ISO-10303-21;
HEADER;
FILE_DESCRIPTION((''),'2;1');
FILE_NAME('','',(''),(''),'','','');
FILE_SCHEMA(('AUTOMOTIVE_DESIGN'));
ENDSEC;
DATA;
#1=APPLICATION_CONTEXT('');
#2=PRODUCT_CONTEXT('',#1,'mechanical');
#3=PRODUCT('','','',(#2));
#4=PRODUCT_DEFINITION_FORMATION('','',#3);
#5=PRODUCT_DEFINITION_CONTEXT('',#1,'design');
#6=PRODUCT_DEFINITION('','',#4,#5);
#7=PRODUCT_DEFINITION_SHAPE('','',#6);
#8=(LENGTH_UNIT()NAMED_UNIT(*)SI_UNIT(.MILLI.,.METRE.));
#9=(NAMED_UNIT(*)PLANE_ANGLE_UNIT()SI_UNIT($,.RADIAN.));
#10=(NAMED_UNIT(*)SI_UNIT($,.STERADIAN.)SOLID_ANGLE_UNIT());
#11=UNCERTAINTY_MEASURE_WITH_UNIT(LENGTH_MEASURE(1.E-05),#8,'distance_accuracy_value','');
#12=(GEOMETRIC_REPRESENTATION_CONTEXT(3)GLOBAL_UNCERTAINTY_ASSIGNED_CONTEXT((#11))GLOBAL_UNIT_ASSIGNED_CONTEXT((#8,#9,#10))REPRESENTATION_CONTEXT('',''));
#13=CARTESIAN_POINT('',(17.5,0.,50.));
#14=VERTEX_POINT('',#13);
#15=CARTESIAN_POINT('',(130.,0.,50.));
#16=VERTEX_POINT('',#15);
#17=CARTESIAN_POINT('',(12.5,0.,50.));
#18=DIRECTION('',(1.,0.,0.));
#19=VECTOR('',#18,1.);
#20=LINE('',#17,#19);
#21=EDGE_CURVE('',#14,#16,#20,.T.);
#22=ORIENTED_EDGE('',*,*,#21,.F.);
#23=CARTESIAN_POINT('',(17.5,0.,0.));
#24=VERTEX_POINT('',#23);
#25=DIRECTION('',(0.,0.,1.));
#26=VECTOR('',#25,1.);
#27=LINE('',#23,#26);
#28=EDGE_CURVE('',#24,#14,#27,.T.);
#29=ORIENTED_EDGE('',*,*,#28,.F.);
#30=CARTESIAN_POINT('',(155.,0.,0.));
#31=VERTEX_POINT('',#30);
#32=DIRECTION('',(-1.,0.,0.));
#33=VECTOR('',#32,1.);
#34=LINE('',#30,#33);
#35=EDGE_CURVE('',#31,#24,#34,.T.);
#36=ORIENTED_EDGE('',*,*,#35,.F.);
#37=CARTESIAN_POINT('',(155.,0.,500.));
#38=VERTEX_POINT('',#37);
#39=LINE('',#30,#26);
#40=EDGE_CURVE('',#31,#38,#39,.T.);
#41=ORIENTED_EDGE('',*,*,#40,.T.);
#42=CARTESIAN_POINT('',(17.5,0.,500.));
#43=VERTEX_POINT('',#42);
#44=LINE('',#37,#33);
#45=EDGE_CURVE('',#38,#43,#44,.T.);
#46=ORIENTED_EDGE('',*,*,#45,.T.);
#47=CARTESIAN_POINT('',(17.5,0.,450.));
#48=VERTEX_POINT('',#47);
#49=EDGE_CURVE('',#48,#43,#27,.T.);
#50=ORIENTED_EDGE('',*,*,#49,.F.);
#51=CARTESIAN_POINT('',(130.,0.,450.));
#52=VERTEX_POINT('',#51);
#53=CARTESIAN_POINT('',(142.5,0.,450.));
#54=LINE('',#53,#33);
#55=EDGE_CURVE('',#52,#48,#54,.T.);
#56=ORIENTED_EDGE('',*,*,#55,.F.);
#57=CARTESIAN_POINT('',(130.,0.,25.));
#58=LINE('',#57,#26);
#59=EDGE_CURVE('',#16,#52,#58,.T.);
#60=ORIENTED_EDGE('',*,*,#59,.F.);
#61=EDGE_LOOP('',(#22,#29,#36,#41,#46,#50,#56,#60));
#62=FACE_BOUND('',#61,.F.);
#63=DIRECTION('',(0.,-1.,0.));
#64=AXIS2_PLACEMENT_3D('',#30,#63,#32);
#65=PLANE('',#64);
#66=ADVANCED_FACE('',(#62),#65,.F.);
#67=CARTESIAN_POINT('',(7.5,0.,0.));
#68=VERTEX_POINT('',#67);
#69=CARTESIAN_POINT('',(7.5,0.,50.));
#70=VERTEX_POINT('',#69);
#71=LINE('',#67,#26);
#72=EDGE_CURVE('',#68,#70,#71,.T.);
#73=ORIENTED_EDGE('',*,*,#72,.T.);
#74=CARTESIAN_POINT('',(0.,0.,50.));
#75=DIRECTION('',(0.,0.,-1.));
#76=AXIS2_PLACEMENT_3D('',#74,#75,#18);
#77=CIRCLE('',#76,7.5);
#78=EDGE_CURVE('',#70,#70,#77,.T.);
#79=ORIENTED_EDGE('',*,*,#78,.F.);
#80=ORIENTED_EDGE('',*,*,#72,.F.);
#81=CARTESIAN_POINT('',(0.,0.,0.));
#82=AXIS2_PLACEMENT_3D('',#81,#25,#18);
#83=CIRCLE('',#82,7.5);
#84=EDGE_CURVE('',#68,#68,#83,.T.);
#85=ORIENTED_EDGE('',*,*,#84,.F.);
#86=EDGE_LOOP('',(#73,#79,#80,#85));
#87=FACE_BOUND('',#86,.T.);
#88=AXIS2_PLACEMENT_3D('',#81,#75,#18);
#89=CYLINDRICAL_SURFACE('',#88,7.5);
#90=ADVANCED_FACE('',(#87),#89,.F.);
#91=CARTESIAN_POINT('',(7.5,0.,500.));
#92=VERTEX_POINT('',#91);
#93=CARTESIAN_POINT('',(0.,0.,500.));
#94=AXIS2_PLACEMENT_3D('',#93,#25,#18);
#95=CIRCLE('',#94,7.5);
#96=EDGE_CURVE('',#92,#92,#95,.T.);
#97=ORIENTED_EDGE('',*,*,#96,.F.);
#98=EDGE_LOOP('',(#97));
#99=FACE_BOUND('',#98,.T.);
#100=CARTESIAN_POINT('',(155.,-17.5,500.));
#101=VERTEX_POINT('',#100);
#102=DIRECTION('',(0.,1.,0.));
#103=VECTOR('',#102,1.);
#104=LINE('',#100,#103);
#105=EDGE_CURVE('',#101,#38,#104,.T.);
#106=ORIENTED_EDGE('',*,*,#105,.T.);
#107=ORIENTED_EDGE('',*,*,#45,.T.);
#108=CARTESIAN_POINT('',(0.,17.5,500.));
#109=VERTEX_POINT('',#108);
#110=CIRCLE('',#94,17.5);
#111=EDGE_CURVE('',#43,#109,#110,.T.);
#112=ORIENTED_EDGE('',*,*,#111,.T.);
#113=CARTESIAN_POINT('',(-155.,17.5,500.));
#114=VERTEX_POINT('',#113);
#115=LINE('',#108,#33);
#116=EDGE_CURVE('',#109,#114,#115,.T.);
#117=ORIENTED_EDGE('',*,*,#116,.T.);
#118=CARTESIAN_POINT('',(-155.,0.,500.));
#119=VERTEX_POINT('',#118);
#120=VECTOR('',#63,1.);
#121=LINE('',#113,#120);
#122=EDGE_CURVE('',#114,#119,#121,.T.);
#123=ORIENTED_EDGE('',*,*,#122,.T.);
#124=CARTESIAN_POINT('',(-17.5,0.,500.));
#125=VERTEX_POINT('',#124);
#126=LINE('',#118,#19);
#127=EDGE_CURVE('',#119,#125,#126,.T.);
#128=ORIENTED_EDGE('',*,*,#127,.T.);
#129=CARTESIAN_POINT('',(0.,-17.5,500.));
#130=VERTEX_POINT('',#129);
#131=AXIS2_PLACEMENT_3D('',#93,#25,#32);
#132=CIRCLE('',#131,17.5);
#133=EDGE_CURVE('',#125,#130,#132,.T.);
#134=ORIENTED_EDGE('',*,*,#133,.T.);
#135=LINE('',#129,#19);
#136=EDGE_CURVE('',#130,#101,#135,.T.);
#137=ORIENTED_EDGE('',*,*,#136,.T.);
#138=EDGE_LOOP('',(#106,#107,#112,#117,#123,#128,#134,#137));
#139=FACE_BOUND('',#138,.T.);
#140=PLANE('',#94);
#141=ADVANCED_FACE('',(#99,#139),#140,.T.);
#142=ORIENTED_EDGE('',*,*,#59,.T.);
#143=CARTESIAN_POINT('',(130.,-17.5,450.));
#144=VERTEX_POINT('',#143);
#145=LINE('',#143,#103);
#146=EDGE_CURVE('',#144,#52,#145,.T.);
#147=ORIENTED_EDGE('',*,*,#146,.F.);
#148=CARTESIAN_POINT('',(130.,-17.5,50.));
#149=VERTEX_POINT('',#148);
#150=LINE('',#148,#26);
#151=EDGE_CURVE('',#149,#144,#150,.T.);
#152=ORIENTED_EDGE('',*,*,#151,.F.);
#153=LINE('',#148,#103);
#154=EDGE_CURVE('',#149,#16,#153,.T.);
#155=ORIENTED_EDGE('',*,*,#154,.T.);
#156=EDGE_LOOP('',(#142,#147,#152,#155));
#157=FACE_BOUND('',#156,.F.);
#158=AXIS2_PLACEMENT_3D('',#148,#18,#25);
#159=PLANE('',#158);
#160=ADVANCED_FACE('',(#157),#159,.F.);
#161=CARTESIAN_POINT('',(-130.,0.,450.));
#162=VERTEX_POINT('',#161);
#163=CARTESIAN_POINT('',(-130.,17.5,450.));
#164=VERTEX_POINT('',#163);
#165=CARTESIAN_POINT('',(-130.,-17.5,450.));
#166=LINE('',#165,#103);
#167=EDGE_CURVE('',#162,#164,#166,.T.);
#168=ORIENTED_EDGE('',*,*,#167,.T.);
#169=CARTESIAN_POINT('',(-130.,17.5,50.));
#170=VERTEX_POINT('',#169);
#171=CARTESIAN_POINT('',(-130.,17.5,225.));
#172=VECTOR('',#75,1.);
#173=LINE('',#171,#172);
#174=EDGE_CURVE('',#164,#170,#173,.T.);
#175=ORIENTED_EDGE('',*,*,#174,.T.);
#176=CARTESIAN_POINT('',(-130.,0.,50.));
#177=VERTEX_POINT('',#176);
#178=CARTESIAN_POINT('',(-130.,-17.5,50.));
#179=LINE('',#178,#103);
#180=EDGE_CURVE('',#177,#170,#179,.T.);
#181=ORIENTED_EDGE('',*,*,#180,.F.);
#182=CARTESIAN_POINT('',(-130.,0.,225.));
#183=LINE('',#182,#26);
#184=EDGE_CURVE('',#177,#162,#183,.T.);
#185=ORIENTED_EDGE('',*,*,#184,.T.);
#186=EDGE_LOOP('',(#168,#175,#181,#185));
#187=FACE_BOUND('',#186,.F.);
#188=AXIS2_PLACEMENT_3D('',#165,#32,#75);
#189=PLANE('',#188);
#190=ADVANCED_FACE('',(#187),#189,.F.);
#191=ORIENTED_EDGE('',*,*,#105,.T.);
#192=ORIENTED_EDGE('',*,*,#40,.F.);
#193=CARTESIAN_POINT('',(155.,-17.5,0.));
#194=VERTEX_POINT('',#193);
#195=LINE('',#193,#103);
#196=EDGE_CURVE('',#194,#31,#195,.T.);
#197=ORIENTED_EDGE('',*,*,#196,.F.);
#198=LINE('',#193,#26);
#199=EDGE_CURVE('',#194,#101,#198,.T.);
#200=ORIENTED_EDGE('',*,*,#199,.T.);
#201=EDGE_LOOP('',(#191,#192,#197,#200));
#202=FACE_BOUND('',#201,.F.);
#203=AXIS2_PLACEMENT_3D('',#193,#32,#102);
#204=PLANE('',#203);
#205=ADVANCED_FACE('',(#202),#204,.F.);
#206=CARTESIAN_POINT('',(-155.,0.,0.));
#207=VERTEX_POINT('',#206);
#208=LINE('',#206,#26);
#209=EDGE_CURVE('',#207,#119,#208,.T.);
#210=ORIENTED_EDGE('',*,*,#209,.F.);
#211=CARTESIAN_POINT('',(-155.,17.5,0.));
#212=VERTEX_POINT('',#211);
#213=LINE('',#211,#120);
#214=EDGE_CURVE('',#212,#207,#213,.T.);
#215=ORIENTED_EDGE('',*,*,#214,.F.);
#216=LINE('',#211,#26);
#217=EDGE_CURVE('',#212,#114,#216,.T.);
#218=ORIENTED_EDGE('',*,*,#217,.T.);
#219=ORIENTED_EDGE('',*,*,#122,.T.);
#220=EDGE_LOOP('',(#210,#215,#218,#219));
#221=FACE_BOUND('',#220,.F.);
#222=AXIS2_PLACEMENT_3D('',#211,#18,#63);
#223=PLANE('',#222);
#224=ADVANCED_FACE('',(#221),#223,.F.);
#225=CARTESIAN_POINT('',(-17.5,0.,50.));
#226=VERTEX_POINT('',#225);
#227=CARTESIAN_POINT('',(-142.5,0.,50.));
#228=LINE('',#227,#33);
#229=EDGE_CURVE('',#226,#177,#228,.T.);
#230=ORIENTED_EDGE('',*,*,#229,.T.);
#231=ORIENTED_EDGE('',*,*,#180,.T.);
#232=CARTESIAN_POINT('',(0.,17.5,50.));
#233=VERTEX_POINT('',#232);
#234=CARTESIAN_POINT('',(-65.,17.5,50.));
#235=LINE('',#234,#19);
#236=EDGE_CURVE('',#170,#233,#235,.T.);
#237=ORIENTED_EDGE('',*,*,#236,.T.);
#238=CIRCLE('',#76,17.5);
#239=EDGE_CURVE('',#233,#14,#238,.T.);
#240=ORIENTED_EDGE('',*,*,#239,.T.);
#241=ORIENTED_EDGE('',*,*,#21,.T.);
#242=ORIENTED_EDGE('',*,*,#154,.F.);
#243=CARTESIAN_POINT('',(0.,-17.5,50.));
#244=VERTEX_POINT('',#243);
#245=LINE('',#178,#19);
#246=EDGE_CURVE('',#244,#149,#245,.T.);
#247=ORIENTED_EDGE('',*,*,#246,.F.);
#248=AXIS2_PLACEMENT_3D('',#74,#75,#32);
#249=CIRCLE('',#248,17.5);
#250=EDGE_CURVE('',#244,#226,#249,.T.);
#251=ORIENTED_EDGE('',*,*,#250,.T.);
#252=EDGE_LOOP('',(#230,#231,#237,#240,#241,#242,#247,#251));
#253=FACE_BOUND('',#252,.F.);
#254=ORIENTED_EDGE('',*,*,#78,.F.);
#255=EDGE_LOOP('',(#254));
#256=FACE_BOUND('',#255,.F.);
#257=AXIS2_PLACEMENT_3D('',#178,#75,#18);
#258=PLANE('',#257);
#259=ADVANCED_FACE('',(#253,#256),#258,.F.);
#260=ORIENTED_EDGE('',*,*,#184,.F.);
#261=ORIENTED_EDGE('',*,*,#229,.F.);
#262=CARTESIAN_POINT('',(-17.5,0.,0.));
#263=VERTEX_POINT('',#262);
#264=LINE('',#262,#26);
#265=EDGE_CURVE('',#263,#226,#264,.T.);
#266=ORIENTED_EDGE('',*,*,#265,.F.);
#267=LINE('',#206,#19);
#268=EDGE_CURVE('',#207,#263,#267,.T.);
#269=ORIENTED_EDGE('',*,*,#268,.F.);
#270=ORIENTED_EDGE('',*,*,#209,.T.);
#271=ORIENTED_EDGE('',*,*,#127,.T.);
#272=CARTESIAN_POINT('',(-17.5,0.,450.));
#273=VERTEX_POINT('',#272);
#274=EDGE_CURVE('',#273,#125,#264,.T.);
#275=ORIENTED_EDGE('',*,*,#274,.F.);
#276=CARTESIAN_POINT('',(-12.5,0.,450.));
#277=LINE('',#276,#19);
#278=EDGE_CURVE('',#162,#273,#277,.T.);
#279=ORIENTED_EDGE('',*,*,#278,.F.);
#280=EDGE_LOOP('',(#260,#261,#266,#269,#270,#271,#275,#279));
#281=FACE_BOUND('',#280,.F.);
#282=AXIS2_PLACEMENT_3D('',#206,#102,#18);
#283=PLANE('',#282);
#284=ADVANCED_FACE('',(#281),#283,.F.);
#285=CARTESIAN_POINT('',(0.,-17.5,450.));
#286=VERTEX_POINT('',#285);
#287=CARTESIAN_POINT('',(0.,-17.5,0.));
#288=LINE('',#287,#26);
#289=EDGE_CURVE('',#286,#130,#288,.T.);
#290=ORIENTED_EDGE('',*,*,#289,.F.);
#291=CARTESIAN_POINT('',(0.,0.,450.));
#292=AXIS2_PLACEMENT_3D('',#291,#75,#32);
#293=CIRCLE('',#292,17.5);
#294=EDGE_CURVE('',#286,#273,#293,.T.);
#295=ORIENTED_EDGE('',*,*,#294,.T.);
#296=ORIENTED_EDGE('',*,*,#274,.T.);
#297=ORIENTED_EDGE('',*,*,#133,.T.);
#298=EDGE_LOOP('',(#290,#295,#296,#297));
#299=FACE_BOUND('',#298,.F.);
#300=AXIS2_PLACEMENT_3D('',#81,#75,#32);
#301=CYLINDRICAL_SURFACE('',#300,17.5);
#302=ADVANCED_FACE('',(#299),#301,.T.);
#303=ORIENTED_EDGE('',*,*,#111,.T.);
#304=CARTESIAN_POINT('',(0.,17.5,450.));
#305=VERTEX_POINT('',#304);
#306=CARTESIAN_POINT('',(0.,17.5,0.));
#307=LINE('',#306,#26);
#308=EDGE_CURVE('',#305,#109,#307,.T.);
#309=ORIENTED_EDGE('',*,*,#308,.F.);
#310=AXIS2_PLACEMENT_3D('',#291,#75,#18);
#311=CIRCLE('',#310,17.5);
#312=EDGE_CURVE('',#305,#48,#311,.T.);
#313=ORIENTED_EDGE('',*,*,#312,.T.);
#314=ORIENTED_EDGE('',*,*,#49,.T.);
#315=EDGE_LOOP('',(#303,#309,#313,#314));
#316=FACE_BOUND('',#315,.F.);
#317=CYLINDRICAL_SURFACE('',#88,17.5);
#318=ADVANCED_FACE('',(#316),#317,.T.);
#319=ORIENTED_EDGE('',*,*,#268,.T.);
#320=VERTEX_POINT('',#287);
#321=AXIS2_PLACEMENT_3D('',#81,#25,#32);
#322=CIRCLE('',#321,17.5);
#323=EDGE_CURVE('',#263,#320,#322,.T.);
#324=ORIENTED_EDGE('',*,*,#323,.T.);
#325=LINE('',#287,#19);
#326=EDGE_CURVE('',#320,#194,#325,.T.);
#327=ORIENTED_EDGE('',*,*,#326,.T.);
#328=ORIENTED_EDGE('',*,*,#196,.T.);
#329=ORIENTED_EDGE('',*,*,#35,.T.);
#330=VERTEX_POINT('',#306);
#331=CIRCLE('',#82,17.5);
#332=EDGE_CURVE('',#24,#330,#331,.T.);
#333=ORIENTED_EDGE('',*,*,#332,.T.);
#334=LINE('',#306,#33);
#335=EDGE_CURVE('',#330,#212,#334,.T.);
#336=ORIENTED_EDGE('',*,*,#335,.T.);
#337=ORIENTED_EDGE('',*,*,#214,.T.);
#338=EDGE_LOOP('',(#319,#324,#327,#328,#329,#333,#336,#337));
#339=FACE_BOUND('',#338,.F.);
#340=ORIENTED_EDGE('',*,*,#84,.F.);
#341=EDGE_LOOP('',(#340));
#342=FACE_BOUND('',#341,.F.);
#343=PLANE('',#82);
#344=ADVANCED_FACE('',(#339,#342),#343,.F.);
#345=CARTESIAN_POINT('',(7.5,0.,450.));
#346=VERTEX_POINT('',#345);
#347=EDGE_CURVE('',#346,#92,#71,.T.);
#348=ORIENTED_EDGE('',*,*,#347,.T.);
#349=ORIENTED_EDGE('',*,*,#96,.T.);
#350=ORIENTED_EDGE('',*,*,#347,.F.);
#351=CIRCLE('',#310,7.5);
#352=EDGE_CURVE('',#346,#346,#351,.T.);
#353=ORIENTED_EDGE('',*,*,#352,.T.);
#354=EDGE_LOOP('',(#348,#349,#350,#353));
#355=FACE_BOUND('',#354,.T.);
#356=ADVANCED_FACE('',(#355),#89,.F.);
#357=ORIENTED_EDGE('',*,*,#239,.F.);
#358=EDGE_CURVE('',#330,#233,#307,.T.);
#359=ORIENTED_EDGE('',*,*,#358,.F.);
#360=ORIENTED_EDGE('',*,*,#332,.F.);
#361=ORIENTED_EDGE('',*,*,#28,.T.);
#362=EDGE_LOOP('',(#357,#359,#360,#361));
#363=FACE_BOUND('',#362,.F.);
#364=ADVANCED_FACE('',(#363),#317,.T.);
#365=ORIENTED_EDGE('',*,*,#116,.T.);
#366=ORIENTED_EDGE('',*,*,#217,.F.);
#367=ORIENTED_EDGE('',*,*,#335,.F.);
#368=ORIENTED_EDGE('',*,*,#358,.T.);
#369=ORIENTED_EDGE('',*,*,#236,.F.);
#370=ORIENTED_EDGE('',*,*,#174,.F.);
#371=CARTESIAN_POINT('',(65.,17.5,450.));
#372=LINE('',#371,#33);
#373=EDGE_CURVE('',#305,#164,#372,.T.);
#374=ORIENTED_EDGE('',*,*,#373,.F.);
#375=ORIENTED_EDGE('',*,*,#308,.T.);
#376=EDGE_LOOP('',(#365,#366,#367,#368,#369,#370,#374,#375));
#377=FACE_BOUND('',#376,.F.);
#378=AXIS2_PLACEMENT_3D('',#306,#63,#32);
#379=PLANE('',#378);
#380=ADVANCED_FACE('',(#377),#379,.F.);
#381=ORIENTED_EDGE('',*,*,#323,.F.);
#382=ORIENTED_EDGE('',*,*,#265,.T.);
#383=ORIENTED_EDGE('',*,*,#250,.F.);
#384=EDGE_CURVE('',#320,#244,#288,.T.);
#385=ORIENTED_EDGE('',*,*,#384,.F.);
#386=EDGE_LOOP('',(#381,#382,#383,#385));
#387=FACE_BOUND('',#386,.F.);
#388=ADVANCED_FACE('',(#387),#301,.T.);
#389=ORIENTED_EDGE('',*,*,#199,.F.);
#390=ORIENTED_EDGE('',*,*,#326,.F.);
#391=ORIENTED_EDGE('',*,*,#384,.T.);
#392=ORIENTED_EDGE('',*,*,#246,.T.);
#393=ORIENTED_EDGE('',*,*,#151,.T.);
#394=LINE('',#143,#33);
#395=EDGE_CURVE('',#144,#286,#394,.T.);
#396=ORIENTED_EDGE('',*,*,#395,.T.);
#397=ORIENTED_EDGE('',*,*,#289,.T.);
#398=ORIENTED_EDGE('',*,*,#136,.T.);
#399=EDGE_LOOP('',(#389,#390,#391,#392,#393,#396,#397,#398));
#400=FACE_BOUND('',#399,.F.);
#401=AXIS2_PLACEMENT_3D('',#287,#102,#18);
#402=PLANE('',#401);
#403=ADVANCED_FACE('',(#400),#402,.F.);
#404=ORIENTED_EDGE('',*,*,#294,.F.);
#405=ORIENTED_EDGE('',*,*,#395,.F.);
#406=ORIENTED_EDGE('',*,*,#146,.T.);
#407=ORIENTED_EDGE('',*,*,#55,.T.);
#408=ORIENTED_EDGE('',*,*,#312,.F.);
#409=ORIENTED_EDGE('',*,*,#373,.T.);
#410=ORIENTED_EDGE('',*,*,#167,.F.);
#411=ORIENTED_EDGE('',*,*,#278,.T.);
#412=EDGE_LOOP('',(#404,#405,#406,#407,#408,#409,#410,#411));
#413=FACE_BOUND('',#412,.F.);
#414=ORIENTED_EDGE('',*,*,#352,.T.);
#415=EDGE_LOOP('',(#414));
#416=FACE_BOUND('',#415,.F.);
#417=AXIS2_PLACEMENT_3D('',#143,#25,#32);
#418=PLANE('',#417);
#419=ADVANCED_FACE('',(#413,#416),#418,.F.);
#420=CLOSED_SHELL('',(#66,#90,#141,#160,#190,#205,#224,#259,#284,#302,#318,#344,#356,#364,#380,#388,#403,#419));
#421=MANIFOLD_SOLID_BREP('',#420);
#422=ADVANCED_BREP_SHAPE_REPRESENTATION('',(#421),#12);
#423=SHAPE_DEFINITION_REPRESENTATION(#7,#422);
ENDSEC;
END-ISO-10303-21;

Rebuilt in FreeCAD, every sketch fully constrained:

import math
import FreeCAD as App
import Part
import Sketcher

V = App.Vector
Q = App.Units.Quantity

doc = App.newDocument("Part")
body = doc.addObject("PartDesign::Body", "Body")

sketch1 = doc.addObject("Sketcher::SketchObject", "Sketch")
body.addObject(sketch1)
sketch1.AttachmentSupport = (doc.XY_Plane, [""])
sketch1.MapMode = "FlatFace"
sketch1.addGeometry([
    Part.LineSegment(V(-155, 0, 0), V(-18, 0, 0)),
    Part.ArcOfCircle(Part.Circle(V(0, 0, 0), V(0, 0, 1), 18), math.radians(180), math.radians(270)),
    Part.LineSegment(V(0, -18, 0), V(155, -18, 0)),
    Part.LineSegment(V(155, -18, 0), V(155, 0, 0)),
    Part.LineSegment(V(155, 0, 0), V(18, 0, 0)),
    Part.ArcOfCircle(Part.Circle(V(0, 0, 0), V(0, 0, 1), 18), math.radians(0), math.radians(90)),
    Part.LineSegment(V(0, 18, 0), V(-155, 18, 0)),
    Part.LineSegment(V(-155, 18, 0), V(-155, 0, 0)),
    Part.Circle(V(0, 0, 0), V(0, 0, 1), 8),
], False)
sketch1.addConstraint([
    Sketcher.Constraint("Coincident", 0, 2, 1, 1),
    Sketcher.Constraint("Tangent", 1, 2, 2, 1),
    Sketcher.Constraint("Coincident", 2, 2, 3, 1),
    Sketcher.Constraint("Coincident", 3, 2, 4, 1),
    Sketcher.Constraint("Coincident", 4, 2, 5, 1),
    Sketcher.Constraint("Tangent", 5, 2, 6, 1),
    Sketcher.Constraint("Coincident", 6, 2, 7, 1),
    Sketcher.Constraint("Coincident", 7, 2, 0, 1),
    Sketcher.Constraint("Horizontal", 0),
    Sketcher.Constraint("Horizontal", 2),
    Sketcher.Constraint("Vertical", 3),
    Sketcher.Constraint("Horizontal", 4),
    Sketcher.Constraint("Horizontal", 6),
    Sketcher.Constraint("Vertical", 7),
    Sketcher.Constraint("Coincident", 1, 3, -1, 1),
    Sketcher.Constraint("Coincident", 5, 3, -1, 1),
    Sketcher.Constraint("Coincident", 8, 3, -1, 1),
    Sketcher.Constraint("Equal", 1, 5),
    Sketcher.Constraint("Symmetric", 3, 2, 7, 2, -1, 1),
    Sketcher.Constraint("PointOnObject", 0, 2, -1),
    Sketcher.Constraint("Diameter", 8, Q("15 mm")),
    Sketcher.Constraint("Radius", 1, Q("17.5 mm")),
    Sketcher.Constraint("DistanceX", 2, 1, 2, 2, Q("155 mm")),
])
pad1 = doc.addObject("PartDesign::Pad", "Pad")
body.addObject(pad1)
pad1.Profile = sketch1
pad1.Length = 500

sketch2 = doc.addObject("Sketcher::SketchObject", "Sketch001")
body.addObject(sketch2)
sketch2.AttachmentSupport = (doc.XZ_Plane, [""])
sketch2.MapMode = "FlatFace"
sketch2.AttachmentOffset = App.Placement(V(0, 0, 17.5), App.Rotation())
sketch2.addGeometry([
    Part.LineSegment(V(-130, 450, 0), V(-130, 50, 0)),
    Part.LineSegment(V(-130, 50, 0), V(130, 50, 0)),
    Part.LineSegment(V(130, 50, 0), V(130, 450, 0)),
    Part.LineSegment(V(130, 450, 0), V(-130, 450, 0)),
], False)
sketch2.addConstraint([
    Sketcher.Constraint("Coincident", 0, 2, 1, 1),
    Sketcher.Constraint("Coincident", 1, 2, 2, 1),
    Sketcher.Constraint("Coincident", 2, 2, 3, 1),
    Sketcher.Constraint("Coincident", 3, 2, 0, 1),
    Sketcher.Constraint("Vertical", 0),
    Sketcher.Constraint("Horizontal", 1),
    Sketcher.Constraint("Vertical", 2),
    Sketcher.Constraint("Horizontal", 3),
    Sketcher.Constraint("DistanceX", 1, 1, 1, 2, Q("260 mm")),
    Sketcher.Constraint("DistanceY", 0, 2, 0, 1, Q("400 mm")),
    Sketcher.Constraint("DistanceX", 0, 2, -1, 1, Q("130 mm")),
    Sketcher.Constraint("DistanceY", -1, 1, 0, 2, Q("50 mm")),
])
pocket1 = doc.addObject("PartDesign::Pocket", "Pocket")
body.addObject(pocket1)
pocket1.Profile = sketch2
pocket1.Type = "ThroughAll"

doc.recompute()
